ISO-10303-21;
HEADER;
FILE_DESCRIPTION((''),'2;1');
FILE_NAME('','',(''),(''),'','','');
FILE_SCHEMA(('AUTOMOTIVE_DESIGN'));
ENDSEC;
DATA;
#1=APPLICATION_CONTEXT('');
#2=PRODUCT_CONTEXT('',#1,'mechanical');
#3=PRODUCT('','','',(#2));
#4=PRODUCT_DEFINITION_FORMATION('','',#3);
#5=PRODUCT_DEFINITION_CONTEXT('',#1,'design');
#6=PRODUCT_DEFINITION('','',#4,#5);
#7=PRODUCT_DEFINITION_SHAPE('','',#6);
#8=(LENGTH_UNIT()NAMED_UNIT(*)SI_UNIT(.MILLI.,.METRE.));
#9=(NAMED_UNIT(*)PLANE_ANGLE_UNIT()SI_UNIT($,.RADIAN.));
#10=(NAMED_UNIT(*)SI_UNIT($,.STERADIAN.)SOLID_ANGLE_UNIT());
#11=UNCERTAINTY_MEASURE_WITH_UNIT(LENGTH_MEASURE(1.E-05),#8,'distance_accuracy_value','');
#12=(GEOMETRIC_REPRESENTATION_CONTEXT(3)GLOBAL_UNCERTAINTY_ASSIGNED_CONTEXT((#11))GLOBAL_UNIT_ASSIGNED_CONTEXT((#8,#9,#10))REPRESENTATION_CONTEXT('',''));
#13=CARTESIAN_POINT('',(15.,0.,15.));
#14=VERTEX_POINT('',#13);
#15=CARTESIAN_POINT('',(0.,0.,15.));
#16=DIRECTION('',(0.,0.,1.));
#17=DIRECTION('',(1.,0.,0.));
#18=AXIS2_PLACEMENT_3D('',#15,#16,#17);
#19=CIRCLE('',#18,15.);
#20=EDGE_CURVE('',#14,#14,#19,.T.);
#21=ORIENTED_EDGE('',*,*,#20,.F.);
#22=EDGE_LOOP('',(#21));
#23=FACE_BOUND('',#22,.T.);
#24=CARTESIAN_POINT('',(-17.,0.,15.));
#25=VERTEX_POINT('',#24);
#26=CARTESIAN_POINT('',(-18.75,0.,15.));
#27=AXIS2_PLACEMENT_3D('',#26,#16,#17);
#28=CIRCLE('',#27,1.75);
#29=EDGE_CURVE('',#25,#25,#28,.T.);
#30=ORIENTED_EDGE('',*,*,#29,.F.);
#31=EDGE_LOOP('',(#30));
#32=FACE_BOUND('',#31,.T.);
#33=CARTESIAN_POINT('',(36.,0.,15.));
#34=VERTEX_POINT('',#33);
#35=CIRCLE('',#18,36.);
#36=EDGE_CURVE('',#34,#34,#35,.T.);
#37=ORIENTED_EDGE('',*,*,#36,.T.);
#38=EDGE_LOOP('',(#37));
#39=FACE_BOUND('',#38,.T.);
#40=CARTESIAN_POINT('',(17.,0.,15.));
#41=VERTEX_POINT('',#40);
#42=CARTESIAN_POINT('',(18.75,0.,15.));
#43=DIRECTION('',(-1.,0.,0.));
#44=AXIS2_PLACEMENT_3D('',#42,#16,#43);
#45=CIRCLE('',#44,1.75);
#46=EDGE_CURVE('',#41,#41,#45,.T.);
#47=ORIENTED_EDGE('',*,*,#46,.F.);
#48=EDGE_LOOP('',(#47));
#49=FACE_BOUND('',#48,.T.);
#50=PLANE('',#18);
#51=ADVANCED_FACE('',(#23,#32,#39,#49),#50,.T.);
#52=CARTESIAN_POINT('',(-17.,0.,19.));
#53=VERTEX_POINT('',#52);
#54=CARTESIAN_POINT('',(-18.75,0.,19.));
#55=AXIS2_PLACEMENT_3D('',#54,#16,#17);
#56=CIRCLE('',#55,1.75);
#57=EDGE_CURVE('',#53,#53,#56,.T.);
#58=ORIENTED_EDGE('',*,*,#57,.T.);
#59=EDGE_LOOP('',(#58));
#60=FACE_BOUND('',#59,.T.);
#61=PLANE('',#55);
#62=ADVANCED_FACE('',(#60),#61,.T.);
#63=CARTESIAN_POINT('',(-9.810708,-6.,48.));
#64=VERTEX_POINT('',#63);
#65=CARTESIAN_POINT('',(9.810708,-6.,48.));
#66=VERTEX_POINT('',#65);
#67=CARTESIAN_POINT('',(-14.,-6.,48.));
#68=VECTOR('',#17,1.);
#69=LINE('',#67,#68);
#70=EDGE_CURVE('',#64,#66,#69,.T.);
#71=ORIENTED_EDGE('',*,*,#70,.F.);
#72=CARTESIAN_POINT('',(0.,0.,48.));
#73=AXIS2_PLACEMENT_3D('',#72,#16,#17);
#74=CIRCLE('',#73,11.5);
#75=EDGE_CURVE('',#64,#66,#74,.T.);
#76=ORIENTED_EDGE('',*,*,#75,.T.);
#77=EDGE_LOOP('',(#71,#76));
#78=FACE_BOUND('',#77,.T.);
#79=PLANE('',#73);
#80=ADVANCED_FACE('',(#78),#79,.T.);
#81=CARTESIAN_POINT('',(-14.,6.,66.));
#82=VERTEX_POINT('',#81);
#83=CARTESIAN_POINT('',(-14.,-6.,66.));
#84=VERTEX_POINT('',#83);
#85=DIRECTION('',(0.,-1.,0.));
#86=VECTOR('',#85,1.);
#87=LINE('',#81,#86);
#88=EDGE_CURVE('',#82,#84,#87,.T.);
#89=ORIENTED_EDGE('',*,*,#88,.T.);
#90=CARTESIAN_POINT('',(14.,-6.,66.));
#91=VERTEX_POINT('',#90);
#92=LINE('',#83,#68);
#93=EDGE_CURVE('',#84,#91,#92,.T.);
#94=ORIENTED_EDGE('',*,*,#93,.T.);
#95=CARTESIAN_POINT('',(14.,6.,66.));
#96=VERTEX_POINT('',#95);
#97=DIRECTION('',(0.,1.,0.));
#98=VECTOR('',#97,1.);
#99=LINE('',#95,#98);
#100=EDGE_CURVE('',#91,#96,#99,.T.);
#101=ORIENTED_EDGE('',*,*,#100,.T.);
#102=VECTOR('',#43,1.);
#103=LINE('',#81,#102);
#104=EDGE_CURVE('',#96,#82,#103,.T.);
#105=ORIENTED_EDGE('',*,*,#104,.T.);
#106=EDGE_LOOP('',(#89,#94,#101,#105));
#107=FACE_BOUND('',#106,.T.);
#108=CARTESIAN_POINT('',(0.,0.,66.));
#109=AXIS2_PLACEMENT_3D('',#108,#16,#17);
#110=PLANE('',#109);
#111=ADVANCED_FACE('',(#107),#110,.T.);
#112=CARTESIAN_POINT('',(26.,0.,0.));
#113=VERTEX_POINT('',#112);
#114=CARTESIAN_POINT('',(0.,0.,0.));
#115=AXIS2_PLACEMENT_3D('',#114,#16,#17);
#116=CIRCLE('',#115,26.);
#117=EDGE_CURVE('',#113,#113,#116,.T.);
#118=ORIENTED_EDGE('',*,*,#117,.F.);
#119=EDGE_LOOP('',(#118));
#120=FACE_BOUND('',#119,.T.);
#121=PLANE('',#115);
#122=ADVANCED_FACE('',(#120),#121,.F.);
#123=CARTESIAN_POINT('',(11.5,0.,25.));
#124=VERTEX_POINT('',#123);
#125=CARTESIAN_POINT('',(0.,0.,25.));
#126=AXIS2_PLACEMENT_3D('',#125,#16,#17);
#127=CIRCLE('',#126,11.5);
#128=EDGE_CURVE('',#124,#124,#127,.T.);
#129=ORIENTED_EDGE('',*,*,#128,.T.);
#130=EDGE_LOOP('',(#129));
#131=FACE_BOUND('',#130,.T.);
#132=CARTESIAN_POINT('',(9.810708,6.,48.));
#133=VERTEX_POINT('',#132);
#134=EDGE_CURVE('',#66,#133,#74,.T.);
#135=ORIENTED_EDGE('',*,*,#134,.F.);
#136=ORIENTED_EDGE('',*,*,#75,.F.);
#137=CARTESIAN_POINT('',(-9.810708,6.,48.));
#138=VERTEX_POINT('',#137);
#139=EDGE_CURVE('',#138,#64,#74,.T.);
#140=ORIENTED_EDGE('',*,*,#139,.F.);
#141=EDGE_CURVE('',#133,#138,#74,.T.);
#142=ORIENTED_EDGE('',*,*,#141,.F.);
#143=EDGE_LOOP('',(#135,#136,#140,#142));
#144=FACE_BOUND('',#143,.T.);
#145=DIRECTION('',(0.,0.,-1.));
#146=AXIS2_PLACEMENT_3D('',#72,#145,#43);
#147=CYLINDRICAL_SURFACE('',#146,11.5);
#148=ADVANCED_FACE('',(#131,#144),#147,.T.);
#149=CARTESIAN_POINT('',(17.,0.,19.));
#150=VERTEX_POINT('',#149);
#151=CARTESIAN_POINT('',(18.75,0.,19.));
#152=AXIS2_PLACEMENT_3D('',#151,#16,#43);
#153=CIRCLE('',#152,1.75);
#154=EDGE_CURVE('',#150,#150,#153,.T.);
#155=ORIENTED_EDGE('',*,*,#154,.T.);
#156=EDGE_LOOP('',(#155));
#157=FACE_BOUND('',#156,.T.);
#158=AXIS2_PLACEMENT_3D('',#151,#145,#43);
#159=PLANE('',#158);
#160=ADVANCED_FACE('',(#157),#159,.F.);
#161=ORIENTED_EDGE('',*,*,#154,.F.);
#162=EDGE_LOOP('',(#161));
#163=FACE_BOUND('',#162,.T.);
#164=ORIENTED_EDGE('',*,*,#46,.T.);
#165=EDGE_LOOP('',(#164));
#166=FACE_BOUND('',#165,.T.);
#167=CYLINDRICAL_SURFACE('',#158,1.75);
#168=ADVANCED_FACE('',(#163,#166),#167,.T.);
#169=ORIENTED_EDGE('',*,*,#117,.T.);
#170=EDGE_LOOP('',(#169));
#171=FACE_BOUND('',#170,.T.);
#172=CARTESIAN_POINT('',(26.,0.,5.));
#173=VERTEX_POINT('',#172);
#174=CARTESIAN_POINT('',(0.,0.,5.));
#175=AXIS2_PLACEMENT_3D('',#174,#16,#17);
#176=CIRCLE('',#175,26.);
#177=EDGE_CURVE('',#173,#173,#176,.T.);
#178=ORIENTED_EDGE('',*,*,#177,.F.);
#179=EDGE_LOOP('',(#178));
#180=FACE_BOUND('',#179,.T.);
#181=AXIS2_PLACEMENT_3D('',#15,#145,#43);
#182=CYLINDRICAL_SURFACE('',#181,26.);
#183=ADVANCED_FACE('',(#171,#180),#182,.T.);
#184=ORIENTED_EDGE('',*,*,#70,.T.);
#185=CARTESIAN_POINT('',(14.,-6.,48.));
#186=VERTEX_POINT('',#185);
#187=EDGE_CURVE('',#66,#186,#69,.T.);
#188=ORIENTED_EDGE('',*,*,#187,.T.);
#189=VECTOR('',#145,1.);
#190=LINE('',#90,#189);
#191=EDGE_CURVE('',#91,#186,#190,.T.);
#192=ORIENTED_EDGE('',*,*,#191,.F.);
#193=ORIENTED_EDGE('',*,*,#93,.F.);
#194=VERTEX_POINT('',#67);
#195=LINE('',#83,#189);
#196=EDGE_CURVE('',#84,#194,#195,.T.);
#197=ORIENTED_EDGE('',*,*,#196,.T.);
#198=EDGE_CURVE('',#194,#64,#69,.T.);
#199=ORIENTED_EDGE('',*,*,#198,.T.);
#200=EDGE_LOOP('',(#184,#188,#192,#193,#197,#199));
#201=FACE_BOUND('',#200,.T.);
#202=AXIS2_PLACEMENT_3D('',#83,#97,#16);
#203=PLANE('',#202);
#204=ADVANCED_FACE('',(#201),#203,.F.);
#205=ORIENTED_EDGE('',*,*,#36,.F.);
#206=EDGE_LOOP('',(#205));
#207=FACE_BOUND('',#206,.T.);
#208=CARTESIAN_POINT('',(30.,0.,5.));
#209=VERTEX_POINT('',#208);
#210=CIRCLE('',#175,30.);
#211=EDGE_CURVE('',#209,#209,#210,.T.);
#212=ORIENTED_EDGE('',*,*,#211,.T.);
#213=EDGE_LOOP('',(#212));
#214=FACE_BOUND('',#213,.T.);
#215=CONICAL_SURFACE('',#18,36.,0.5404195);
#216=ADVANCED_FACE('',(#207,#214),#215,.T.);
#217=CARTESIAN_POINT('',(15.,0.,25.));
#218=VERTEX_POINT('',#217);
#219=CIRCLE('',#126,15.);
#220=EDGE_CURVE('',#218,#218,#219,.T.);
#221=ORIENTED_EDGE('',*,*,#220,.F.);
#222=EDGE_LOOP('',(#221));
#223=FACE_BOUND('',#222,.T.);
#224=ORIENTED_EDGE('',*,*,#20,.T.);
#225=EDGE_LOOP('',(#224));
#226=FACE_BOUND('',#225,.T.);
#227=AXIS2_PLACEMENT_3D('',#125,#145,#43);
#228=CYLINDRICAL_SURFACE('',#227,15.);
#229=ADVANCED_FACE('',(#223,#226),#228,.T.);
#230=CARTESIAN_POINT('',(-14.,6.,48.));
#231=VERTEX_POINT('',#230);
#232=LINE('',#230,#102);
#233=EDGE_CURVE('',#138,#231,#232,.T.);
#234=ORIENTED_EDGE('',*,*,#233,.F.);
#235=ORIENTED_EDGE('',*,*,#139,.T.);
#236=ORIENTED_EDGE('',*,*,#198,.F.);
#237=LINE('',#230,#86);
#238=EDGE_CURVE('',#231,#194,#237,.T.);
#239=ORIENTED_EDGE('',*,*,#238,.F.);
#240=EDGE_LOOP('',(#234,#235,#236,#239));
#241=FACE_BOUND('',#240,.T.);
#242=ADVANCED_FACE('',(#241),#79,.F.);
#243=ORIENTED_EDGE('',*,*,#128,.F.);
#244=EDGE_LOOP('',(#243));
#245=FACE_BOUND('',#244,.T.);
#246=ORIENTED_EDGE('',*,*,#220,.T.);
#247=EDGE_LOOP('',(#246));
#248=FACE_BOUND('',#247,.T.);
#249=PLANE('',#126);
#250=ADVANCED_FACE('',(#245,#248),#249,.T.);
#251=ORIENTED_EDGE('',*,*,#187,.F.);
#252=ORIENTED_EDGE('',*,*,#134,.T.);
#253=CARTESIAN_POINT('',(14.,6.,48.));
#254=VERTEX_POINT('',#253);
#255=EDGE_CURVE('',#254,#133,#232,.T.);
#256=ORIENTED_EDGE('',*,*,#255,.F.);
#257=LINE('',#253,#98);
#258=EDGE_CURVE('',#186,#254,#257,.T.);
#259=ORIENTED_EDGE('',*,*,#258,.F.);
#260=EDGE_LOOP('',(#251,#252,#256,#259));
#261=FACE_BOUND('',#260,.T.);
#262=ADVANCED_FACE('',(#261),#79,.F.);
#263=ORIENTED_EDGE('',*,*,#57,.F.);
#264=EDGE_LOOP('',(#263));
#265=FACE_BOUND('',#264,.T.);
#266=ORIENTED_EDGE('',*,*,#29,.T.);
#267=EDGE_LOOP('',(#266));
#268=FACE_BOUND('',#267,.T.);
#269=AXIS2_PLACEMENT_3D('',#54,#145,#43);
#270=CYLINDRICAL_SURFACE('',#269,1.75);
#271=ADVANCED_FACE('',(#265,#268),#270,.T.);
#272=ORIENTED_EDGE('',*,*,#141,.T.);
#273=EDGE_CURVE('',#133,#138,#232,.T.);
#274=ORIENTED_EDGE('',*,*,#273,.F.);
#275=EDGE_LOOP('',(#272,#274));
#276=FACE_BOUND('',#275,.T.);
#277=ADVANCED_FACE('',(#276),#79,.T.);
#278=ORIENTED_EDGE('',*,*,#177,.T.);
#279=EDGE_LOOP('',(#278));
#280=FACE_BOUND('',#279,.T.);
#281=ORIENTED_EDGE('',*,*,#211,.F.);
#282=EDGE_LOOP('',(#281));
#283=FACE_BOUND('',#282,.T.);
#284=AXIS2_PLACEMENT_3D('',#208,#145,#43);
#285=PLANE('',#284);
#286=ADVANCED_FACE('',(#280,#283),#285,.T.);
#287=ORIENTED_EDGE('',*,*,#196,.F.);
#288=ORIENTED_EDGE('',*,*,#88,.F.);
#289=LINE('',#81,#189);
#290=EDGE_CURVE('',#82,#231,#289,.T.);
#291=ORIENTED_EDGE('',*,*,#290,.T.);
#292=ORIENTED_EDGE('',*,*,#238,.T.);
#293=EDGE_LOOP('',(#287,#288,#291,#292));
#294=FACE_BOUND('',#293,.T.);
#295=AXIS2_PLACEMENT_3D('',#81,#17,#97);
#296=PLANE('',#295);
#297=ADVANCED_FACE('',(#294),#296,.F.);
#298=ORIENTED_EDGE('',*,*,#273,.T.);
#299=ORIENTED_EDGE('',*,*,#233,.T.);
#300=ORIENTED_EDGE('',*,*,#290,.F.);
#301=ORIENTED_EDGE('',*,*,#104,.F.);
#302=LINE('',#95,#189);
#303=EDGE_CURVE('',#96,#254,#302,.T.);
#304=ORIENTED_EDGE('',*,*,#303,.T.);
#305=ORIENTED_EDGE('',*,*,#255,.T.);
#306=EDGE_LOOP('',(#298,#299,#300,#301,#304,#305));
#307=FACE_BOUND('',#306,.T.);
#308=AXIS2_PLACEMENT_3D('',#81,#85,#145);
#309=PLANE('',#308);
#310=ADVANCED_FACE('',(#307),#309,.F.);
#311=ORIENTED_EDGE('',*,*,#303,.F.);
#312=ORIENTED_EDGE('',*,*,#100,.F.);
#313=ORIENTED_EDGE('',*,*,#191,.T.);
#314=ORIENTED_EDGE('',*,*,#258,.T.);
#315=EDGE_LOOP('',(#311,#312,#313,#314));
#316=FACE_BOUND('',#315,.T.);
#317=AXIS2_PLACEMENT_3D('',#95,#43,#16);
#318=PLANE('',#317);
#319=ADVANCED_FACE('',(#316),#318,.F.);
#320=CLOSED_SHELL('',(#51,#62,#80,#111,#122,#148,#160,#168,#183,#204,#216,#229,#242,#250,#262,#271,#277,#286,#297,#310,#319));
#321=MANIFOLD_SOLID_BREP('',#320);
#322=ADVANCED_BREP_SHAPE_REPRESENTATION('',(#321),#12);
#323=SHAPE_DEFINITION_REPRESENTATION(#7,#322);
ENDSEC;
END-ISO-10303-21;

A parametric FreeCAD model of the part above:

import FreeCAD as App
import Part
import Sketcher
from FreeCAD import Vector
Q = App.Units.Quantity

doc = App.newDocument("Part")
params = doc.addObject("Spreadsheet::Sheet", "Params")
for row, (alias, value) in enumerate([
    ("sketch1_diameter", "52 mm"),
    ("pad1_length", "15 mm"),
    ("sketch2_width", "10 mm"),
    ("sketch2_width2", "4 mm"),
    ("revolution_angle", "360 deg"),
    ("sketch3_diameter", "30 mm"),
    ("pad2_length", "10 mm"),
    ("sketch4_diameter", "23 mm"),
    ("pad3_length", "23 mm"),
    ("sketch5_width", "28 mm"),
    ("sketch5_height", "12 mm"),
    ("pad4_length", "18 mm"),
    ("sketch6_diameter", "3.5 mm"),
    ("pad5_length", "4 mm"),
], start=1):
    params.set(f"A{row}", alias)
    params.set(f"B{row}", "=" + value)
    params.setAlias(f"B{row}", alias)

body = doc.addObject("PartDesign::Body", "Body")

# Sketch on XY plane
sketch1 = doc.addObject("Sketcher::SketchObject", "Sketch")
body.addObject(sketch1)
sketch1.AttachmentSupport = (doc.XY_Plane, [""])
sketch1.MapMode = "FlatFace"
sketch1.addGeometry(Part.Circle(Vector(0, 0, 0), Vector(0, 0, 1), 26), False)
sketch1.addConstraint([
    Sketcher.Constraint("Coincident", 0, 3, -1, 1),
    Sketcher.Constraint("Diameter", 0, Q("52 mm")),
])
sketch1.setExpression("Constraints[1]", "Params.sketch1_diameter")
pad1 = doc.addObject("PartDesign::Pad", "Pad")
body.addObject(pad1)
pad1.Profile = sketch1
pad1.setExpression("Length", "Params.pad1_length")

# Sketch on XZ plane
sketch2 = doc.addObject("Sketcher::SketchObject", "Sketch001")
body.addObject(sketch2)
sketch2.AttachmentSupport = (doc.XZ_Plane, [""])
sketch2.MapMode = "FlatFace"
sketch2.addGeometry([
    Part.LineSegment(Vector(26, 15, 0), Vector(36, 15, 0)),
    Part.LineSegment(Vector(36, 15, 0), Vector(30, 5, 0)),
    Part.LineSegment(Vector(30, 5, 0), Vector(26, 5, 0)),
    Part.LineSegment(Vector(26, 5, 0), Vector(26, 15, 0)),
], False)
sketch2.addConstraint([
    Sketcher.Constraint("Coincident", 0, 2, 1, 1),
    Sketcher.Constraint("Coincident", 1, 2, 2, 1),
    Sketcher.Constraint("Coincident", 2, 2, 3, 1),
    Sketcher.Constraint("Coincident", 3, 2, 0, 1),
    Sketcher.Constraint("Horizontal", 0),
    Sketcher.Constraint("Horizontal", 2),
    Sketcher.Constraint("Vertical", 3),
    Sketcher.Constraint("Equal", 0, 3),
    Sketcher.Constraint("DistanceX", 0, 1, 0, 2, Q("10 mm")),
    Sketcher.Constraint("DistanceX", 2, 2, 2, 1, Q("4 mm")),
    Sketcher.Constraint("DistanceX", -1, 1, 0, 2, Q("36 mm")),
    Sketcher.Constraint("DistanceY", -1, 1, 0, 2, Q("15 mm")),
])
sketch2.setExpression("Constraints[8]", "Params.sketch2_width")
sketch2.setExpression("Constraints[9]", "Params.sketch2_width2")
revolution = doc.addObject("PartDesign::Revolution", "Revolution")
body.addObject(revolution)
revolution.Profile = sketch2
revolution.ReferenceAxis = (sketch2, ["V_Axis"])
revolution.setExpression("Angle", "Params.revolution_angle")

# Sketch on XY plane
sketch3 = doc.addObject("Sketcher::SketchObject", "Sketch002")
body.addObject(sketch3)
sketch3.AttachmentSupport = (doc.XY_Plane, [""])
sketch3.MapMode = "FlatFace"
sketch3.AttachmentOffset = App.Placement(Vector(0, 0, 15), App.Rotation())
sketch3.addGeometry(Part.Circle(Vector(0, 0, 0), Vector(0, 0, 1), 15), False)
sketch3.addConstraint([
    Sketcher.Constraint("Coincident", 0, 3, -1, 1),
    Sketcher.Constraint("Diameter", 0, Q("30 mm")),
])
sketch3.setExpression("Constraints[1]", "Params.sketch3_diameter")
pad2 = doc.addObject("PartDesign::Pad", "Pad001")
body.addObject(pad2)
pad2.Profile = sketch3
pad2.setExpression("Length", "Params.pad2_length")

# Sketch on XY plane
sketch4 = doc.addObject("Sketcher::SketchObject", "Sketch003")
body.addObject(sketch4)
sketch4.AttachmentSupport = (doc.XY_Plane, [""])
sketch4.MapMode = "FlatFace"
sketch4.AttachmentOffset = App.Placement(Vector(0, 0, 25), App.Rotation())
sketch4.addGeometry(Part.Circle(Vector(0, 0, 0), Vector(0, 0, 1), 12), False)
sketch4.addConstraint([
    Sketcher.Constraint("Coincident", 0, 3, -1, 1),
    Sketcher.Constraint("Diameter", 0, Q("23 mm")),
])
sketch4.setExpression("Constraints[1]", "Params.sketch4_diameter")
pad3 = doc.addObject("PartDesign::Pad", "Pad002")
body.addObject(pad3)
pad3.Profile = sketch4
pad3.setExpression("Length", "Params.pad3_length")

# Sketch on XY plane
sketch5 = doc.addObject("Sketcher::SketchObject", "Sketch004")
body.addObject(sketch5)
sketch5.AttachmentSupport = (doc.XY_Plane, [""])
sketch5.MapMode = "FlatFace"
sketch5.AttachmentOffset = App.Placement(Vector(0, 0, 48), App.Rotation())
sketch5.addGeometry([
    Part.LineSegment(Vector(-14, 6, 0), Vector(-14, -6, 0)),
    Part.LineSegment(Vector(-14, -6, 0), Vector(14, -6, 0)),
    Part.LineSegment(Vector(14, -6, 0), Vector(14, 6, 0)),
    Part.LineSegment(Vector(14, 6, 0), Vector(-14, 6, 0)),
], False)
sketch5.addConstraint([
    Sketcher.Constraint("Coincident", 0, 2, 1, 1),
    Sketcher.Constraint("Coincident", 1, 2, 2, 1),
    Sketcher.Constraint("Coincident", 2, 2, 3, 1),
    Sketcher.Constraint("Coincident", 3, 2, 0, 1),
    Sketcher.Constraint("Vertical", 0),
    Sketcher.Constraint("Horizontal", 1),
    Sketcher.Constraint("Vertical", 2),
    Sketcher.Constraint("Horizontal", 3),
    Sketcher.Constraint("Symmetric", 0, 2, 2, 2, -1, 1),
    Sketcher.Constraint("DistanceX", 1, 1, 1, 2, Q("28 mm")),
    Sketcher.Constraint("DistanceY", 0, 2, 0, 1, Q("12 mm")),
])
sketch5.setExpression("Constraints[9]", "Params.sketch5_width")
sketch5.setExpression("Constraints[10]", "Params.sketch5_height")
pad4 = doc.addObject("PartDesign::Pad", "Pad003")
body.addObject(pad4)
pad4.Profile = sketch5
pad4.setExpression("Length", "Params.pad4_length")

# Sketch on XY plane
sketch6 = doc.addObject("Sketcher::SketchObject", "Sketch005")
body.addObject(sketch6)
sketch6.AttachmentSupport = (doc.XY_Plane, [""])
sketch6.MapMode = "FlatFace"
sketch6.AttachmentOffset = App.Placement(Vector(0, 0, 15), App.Rotation())
sketch6.addGeometry([
    Part.Circle(Vector(-18.8, 0, 0), Vector(0, 0, 1), 1.8),
    Part.Circle(Vector(18.8, 0, 0), Vector(0, 0, 1), 1.8),
], False)
sketch6.addConstraint([
    Sketcher.Constraint("Equal", 0, 1),
    Sketcher.Constraint("Symmetric", 0, 3, 1, 3, -1, 1),
    Sketcher.Constraint("PointOnObject", 0, 3, -1),
    Sketcher.Constraint("Diameter", 0, Q("3.5 mm")),
    Sketcher.Constraint("DistanceX", 0, 3, 1, 3, Q("37.5 mm")),
])
sketch6.setExpression("Constraints[3]", "Params.sketch6_diameter")
pad5 = doc.addObject("PartDesign::Pad", "Pad004")
body.addObject(pad5)
pad5.Profile = sketch6
pad5.setExpression("Length", "Params.pad5_length")

doc.recompute()
